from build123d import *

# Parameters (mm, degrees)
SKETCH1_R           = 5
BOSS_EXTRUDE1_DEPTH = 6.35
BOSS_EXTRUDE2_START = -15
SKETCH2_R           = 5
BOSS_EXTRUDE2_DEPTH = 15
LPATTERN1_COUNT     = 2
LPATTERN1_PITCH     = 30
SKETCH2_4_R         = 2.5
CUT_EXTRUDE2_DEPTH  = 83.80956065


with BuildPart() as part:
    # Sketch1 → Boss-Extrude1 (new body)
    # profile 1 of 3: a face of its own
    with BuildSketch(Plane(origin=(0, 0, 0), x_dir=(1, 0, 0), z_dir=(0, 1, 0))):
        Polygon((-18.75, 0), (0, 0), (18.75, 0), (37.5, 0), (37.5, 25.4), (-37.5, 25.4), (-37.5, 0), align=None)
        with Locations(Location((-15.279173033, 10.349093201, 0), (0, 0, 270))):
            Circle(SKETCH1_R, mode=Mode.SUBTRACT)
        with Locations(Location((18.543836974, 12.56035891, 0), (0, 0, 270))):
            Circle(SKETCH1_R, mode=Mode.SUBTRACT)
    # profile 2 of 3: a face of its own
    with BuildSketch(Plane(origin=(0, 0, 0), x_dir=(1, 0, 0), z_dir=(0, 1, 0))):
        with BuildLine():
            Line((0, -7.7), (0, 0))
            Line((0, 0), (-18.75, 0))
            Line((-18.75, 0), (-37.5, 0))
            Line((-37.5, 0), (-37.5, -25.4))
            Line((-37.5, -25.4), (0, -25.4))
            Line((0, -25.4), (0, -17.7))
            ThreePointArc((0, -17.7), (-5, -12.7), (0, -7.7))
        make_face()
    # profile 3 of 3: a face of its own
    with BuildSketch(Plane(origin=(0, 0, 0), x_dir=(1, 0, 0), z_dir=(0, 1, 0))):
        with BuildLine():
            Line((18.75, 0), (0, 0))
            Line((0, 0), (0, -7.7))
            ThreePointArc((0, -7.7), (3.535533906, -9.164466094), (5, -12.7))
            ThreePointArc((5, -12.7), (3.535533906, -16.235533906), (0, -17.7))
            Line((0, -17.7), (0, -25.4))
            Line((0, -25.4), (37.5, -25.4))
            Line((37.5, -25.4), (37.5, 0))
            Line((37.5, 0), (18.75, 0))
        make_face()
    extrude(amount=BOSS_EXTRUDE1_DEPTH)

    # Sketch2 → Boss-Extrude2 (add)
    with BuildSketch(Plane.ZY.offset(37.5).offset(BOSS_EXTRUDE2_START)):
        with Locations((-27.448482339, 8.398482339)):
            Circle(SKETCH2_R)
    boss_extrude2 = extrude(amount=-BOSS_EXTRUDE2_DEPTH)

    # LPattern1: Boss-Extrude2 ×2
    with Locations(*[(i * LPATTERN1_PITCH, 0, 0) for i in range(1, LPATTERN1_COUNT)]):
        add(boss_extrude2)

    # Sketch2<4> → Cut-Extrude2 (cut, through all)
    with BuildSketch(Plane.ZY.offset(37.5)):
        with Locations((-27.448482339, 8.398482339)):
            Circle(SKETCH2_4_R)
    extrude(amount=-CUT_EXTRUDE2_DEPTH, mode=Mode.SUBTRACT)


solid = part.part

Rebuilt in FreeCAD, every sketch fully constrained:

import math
import FreeCAD as App
import Part
import Sketcher

doc = App.newDocument("Part")
body = doc.addObject("PartDesign::Body", "Body")

# Sketch on XZ plane
sketch1 = body.newObject("Sketcher::SketchObject", "Sketch")
sketch1.AttachmentSupport = (doc.getObject("XZ_Plane"), [""])
sketch1.MapMode = "FlatFace"
sketch1.addGeometry([
    Part.LineSegment(App.Vector(38, -25, 0), App.Vector(-38, -25, 0)),  # 0
    Part.LineSegment(App.Vector(-38, -25, 0), App.Vector(-38, 25, 0)),  # 1
    Part.LineSegment(App.Vector(-38, 25, 0), App.Vector(38, 25, 0)),  # 2
    Part.LineSegment(App.Vector(38, 25, 0), App.Vector(38, -25, 0)),  # 3
    Part.Circle(App.Vector(-15, -10, 0), App.Vector(0, 0, 1), 5),  # 4
    Part.Circle(App.Vector(19, -13, 0), App.Vector(0, 0, 1), 5),  # 5
    Part.ArcOfCircle(Part.Circle(App.Vector(0, 13, 0), App.Vector(0, 0, 1), 5), math.radians(90), math.radians(270)),  # 6
    Part.ArcOfCircle(Part.Circle(App.Vector(0, 13, 0), App.Vector(0, 0, 1), 5), math.radians(-90), math.radians(0)),  # 7
    Part.ArcOfCircle(Part.Circle(App.Vector(0, 13, 0), App.Vector(0, 0, 1), 5), math.radians(0), math.radians(90)),  # 8
], False)
sketch1.addConstraint([
    Sketcher.Constraint("Coincident", 0, 2, 1, 1),
    Sketcher.Constraint("Coincident", 1, 2, 2, 1),
    Sketcher.Constraint("Coincident", 2, 2, 3, 1),
    Sketcher.Constraint("Coincident", 3, 2, 0, 1),
    Sketcher.Constraint("Tangent", 6, 2, 7, 1),
    Sketcher.Constraint("Tangent", 7, 2, 8, 1),
    Sketcher.Constraint("Tangent", 8, 2, 6, 1),
    Sketcher.Constraint("Horizontal", 0),
    Sketcher.Constraint("Vertical", 1),
    Sketcher.Constraint("Horizontal", 2),
    Sketcher.Constraint("Vertical", 3),
    Sketcher.Constraint("Equal", 4, 5),
    Sketcher.Constraint("Equal", 5, 6),
    Sketcher.Constraint("Symmetric", 0, 2, 2, 2, -1, 1),
    Sketcher.Constraint("PointOnObject", 6, 3, -2),
    Sketcher.Constraint("PointOnObject", 6, 2, -2),
    Sketcher.Constraint("PointOnObject", 8, 2, -2),
    Sketcher.Constraint("Horizontal", 8, 3, 7, 2),
    Sketcher.Constraint("Diameter", 4, 10.0),
    Sketcher.Constraint("DistanceX", 0, 2, 0, 1, 75.0),
    Sketcher.Constraint("DistanceY", 1, 1, 1, 2, 50.8),
    Sketcher.Constraint("DistanceY", -1, 1, 6, 3, 12.7),
    Sketcher.Constraint("DistanceY", 5, 3, -1, 1, 12.560359),
    Sketcher.Constraint("DistanceX", 4, 3, 5, 3, 33.82301),
    Sketcher.Constraint("DistanceX", 4, 3, -1, 1, 15.279173),
    Sketcher.Constraint("DistanceY", 4, 3, -1, 1, 10.349093),
])
pad1 = body.newObject("PartDesign::Pad", "Pad")
pad1.Profile = sketch1
pad1.Length = 6.35
pad1.Reversed = True

# Sketch on YZ plane
sketch2 = body.newObject("Sketcher::SketchObject", "Sketch001")
sketch2.AttachmentSupport = (doc.getObject("YZ_Plane"), [""])
sketch2.MapMode = "FlatFace"
sketch2.AttachmentOffset = App.Placement(App.Vector(0, 0, -22.5), App.Rotation())
sketch2.addGeometry(Part.Circle(App.Vector(8, -27, 0), App.Vector(0, 0, 1), 5), False)
sketch2.addConstraint([
    Sketcher.Constraint("Diameter", 0, 10.0),
    Sketcher.Constraint("DistanceX", -1, 1, 0, 3, 8.398482),
    Sketcher.Constraint("DistanceY", 0, 3, -1, 1, 27.448482),
])
pad2 = body.newObject("PartDesign::Pad", "Pad001")
pad2.Profile = sketch2
pad2.Length = 15
doc.recompute()

linearpattern = body.newObject("PartDesign::LinearPattern", "LinearPattern")
linearpattern.Originals = [pad2]
linearpattern.Direction = (doc.getObject("X_Axis"), [""])
linearpattern.Mode = "offset"
linearpattern.Offset = 30
linearpattern.Occurrences = 2
body.Tip = linearpattern

# Sketch on YZ plane
sketch3 = body.newObject("Sketcher::SketchObject", "Sketch002")
sketch3.AttachmentSupport = (doc.getObject("YZ_Plane"), [""])
sketch3.MapMode = "FlatFace"
sketch3.AttachmentOffset = App.Placement(App.Vector(0, 0, -37.5), App.Rotation())
sketch3.addGeometry(Part.Circle(App.Vector(8.4, -27.4, 0), App.Vector(0, 0, 1), 2.5), False)
sketch3.addConstraint([
    Sketcher.Constraint("Diameter", 0, 5.0),
    Sketcher.Constraint("DistanceX", -1, 1, 0, 3, 8.398482),
    Sketcher.Constraint("DistanceY", 0, 3, -1, 1, 27.448482),
])
pocket1 = body.newObject("PartDesign::Pocket", "Pocket")
pocket1.Profile = sketch3
pocket1.Type = "ThroughAll"
pocket1.Reversed = True

doc.recompute()
